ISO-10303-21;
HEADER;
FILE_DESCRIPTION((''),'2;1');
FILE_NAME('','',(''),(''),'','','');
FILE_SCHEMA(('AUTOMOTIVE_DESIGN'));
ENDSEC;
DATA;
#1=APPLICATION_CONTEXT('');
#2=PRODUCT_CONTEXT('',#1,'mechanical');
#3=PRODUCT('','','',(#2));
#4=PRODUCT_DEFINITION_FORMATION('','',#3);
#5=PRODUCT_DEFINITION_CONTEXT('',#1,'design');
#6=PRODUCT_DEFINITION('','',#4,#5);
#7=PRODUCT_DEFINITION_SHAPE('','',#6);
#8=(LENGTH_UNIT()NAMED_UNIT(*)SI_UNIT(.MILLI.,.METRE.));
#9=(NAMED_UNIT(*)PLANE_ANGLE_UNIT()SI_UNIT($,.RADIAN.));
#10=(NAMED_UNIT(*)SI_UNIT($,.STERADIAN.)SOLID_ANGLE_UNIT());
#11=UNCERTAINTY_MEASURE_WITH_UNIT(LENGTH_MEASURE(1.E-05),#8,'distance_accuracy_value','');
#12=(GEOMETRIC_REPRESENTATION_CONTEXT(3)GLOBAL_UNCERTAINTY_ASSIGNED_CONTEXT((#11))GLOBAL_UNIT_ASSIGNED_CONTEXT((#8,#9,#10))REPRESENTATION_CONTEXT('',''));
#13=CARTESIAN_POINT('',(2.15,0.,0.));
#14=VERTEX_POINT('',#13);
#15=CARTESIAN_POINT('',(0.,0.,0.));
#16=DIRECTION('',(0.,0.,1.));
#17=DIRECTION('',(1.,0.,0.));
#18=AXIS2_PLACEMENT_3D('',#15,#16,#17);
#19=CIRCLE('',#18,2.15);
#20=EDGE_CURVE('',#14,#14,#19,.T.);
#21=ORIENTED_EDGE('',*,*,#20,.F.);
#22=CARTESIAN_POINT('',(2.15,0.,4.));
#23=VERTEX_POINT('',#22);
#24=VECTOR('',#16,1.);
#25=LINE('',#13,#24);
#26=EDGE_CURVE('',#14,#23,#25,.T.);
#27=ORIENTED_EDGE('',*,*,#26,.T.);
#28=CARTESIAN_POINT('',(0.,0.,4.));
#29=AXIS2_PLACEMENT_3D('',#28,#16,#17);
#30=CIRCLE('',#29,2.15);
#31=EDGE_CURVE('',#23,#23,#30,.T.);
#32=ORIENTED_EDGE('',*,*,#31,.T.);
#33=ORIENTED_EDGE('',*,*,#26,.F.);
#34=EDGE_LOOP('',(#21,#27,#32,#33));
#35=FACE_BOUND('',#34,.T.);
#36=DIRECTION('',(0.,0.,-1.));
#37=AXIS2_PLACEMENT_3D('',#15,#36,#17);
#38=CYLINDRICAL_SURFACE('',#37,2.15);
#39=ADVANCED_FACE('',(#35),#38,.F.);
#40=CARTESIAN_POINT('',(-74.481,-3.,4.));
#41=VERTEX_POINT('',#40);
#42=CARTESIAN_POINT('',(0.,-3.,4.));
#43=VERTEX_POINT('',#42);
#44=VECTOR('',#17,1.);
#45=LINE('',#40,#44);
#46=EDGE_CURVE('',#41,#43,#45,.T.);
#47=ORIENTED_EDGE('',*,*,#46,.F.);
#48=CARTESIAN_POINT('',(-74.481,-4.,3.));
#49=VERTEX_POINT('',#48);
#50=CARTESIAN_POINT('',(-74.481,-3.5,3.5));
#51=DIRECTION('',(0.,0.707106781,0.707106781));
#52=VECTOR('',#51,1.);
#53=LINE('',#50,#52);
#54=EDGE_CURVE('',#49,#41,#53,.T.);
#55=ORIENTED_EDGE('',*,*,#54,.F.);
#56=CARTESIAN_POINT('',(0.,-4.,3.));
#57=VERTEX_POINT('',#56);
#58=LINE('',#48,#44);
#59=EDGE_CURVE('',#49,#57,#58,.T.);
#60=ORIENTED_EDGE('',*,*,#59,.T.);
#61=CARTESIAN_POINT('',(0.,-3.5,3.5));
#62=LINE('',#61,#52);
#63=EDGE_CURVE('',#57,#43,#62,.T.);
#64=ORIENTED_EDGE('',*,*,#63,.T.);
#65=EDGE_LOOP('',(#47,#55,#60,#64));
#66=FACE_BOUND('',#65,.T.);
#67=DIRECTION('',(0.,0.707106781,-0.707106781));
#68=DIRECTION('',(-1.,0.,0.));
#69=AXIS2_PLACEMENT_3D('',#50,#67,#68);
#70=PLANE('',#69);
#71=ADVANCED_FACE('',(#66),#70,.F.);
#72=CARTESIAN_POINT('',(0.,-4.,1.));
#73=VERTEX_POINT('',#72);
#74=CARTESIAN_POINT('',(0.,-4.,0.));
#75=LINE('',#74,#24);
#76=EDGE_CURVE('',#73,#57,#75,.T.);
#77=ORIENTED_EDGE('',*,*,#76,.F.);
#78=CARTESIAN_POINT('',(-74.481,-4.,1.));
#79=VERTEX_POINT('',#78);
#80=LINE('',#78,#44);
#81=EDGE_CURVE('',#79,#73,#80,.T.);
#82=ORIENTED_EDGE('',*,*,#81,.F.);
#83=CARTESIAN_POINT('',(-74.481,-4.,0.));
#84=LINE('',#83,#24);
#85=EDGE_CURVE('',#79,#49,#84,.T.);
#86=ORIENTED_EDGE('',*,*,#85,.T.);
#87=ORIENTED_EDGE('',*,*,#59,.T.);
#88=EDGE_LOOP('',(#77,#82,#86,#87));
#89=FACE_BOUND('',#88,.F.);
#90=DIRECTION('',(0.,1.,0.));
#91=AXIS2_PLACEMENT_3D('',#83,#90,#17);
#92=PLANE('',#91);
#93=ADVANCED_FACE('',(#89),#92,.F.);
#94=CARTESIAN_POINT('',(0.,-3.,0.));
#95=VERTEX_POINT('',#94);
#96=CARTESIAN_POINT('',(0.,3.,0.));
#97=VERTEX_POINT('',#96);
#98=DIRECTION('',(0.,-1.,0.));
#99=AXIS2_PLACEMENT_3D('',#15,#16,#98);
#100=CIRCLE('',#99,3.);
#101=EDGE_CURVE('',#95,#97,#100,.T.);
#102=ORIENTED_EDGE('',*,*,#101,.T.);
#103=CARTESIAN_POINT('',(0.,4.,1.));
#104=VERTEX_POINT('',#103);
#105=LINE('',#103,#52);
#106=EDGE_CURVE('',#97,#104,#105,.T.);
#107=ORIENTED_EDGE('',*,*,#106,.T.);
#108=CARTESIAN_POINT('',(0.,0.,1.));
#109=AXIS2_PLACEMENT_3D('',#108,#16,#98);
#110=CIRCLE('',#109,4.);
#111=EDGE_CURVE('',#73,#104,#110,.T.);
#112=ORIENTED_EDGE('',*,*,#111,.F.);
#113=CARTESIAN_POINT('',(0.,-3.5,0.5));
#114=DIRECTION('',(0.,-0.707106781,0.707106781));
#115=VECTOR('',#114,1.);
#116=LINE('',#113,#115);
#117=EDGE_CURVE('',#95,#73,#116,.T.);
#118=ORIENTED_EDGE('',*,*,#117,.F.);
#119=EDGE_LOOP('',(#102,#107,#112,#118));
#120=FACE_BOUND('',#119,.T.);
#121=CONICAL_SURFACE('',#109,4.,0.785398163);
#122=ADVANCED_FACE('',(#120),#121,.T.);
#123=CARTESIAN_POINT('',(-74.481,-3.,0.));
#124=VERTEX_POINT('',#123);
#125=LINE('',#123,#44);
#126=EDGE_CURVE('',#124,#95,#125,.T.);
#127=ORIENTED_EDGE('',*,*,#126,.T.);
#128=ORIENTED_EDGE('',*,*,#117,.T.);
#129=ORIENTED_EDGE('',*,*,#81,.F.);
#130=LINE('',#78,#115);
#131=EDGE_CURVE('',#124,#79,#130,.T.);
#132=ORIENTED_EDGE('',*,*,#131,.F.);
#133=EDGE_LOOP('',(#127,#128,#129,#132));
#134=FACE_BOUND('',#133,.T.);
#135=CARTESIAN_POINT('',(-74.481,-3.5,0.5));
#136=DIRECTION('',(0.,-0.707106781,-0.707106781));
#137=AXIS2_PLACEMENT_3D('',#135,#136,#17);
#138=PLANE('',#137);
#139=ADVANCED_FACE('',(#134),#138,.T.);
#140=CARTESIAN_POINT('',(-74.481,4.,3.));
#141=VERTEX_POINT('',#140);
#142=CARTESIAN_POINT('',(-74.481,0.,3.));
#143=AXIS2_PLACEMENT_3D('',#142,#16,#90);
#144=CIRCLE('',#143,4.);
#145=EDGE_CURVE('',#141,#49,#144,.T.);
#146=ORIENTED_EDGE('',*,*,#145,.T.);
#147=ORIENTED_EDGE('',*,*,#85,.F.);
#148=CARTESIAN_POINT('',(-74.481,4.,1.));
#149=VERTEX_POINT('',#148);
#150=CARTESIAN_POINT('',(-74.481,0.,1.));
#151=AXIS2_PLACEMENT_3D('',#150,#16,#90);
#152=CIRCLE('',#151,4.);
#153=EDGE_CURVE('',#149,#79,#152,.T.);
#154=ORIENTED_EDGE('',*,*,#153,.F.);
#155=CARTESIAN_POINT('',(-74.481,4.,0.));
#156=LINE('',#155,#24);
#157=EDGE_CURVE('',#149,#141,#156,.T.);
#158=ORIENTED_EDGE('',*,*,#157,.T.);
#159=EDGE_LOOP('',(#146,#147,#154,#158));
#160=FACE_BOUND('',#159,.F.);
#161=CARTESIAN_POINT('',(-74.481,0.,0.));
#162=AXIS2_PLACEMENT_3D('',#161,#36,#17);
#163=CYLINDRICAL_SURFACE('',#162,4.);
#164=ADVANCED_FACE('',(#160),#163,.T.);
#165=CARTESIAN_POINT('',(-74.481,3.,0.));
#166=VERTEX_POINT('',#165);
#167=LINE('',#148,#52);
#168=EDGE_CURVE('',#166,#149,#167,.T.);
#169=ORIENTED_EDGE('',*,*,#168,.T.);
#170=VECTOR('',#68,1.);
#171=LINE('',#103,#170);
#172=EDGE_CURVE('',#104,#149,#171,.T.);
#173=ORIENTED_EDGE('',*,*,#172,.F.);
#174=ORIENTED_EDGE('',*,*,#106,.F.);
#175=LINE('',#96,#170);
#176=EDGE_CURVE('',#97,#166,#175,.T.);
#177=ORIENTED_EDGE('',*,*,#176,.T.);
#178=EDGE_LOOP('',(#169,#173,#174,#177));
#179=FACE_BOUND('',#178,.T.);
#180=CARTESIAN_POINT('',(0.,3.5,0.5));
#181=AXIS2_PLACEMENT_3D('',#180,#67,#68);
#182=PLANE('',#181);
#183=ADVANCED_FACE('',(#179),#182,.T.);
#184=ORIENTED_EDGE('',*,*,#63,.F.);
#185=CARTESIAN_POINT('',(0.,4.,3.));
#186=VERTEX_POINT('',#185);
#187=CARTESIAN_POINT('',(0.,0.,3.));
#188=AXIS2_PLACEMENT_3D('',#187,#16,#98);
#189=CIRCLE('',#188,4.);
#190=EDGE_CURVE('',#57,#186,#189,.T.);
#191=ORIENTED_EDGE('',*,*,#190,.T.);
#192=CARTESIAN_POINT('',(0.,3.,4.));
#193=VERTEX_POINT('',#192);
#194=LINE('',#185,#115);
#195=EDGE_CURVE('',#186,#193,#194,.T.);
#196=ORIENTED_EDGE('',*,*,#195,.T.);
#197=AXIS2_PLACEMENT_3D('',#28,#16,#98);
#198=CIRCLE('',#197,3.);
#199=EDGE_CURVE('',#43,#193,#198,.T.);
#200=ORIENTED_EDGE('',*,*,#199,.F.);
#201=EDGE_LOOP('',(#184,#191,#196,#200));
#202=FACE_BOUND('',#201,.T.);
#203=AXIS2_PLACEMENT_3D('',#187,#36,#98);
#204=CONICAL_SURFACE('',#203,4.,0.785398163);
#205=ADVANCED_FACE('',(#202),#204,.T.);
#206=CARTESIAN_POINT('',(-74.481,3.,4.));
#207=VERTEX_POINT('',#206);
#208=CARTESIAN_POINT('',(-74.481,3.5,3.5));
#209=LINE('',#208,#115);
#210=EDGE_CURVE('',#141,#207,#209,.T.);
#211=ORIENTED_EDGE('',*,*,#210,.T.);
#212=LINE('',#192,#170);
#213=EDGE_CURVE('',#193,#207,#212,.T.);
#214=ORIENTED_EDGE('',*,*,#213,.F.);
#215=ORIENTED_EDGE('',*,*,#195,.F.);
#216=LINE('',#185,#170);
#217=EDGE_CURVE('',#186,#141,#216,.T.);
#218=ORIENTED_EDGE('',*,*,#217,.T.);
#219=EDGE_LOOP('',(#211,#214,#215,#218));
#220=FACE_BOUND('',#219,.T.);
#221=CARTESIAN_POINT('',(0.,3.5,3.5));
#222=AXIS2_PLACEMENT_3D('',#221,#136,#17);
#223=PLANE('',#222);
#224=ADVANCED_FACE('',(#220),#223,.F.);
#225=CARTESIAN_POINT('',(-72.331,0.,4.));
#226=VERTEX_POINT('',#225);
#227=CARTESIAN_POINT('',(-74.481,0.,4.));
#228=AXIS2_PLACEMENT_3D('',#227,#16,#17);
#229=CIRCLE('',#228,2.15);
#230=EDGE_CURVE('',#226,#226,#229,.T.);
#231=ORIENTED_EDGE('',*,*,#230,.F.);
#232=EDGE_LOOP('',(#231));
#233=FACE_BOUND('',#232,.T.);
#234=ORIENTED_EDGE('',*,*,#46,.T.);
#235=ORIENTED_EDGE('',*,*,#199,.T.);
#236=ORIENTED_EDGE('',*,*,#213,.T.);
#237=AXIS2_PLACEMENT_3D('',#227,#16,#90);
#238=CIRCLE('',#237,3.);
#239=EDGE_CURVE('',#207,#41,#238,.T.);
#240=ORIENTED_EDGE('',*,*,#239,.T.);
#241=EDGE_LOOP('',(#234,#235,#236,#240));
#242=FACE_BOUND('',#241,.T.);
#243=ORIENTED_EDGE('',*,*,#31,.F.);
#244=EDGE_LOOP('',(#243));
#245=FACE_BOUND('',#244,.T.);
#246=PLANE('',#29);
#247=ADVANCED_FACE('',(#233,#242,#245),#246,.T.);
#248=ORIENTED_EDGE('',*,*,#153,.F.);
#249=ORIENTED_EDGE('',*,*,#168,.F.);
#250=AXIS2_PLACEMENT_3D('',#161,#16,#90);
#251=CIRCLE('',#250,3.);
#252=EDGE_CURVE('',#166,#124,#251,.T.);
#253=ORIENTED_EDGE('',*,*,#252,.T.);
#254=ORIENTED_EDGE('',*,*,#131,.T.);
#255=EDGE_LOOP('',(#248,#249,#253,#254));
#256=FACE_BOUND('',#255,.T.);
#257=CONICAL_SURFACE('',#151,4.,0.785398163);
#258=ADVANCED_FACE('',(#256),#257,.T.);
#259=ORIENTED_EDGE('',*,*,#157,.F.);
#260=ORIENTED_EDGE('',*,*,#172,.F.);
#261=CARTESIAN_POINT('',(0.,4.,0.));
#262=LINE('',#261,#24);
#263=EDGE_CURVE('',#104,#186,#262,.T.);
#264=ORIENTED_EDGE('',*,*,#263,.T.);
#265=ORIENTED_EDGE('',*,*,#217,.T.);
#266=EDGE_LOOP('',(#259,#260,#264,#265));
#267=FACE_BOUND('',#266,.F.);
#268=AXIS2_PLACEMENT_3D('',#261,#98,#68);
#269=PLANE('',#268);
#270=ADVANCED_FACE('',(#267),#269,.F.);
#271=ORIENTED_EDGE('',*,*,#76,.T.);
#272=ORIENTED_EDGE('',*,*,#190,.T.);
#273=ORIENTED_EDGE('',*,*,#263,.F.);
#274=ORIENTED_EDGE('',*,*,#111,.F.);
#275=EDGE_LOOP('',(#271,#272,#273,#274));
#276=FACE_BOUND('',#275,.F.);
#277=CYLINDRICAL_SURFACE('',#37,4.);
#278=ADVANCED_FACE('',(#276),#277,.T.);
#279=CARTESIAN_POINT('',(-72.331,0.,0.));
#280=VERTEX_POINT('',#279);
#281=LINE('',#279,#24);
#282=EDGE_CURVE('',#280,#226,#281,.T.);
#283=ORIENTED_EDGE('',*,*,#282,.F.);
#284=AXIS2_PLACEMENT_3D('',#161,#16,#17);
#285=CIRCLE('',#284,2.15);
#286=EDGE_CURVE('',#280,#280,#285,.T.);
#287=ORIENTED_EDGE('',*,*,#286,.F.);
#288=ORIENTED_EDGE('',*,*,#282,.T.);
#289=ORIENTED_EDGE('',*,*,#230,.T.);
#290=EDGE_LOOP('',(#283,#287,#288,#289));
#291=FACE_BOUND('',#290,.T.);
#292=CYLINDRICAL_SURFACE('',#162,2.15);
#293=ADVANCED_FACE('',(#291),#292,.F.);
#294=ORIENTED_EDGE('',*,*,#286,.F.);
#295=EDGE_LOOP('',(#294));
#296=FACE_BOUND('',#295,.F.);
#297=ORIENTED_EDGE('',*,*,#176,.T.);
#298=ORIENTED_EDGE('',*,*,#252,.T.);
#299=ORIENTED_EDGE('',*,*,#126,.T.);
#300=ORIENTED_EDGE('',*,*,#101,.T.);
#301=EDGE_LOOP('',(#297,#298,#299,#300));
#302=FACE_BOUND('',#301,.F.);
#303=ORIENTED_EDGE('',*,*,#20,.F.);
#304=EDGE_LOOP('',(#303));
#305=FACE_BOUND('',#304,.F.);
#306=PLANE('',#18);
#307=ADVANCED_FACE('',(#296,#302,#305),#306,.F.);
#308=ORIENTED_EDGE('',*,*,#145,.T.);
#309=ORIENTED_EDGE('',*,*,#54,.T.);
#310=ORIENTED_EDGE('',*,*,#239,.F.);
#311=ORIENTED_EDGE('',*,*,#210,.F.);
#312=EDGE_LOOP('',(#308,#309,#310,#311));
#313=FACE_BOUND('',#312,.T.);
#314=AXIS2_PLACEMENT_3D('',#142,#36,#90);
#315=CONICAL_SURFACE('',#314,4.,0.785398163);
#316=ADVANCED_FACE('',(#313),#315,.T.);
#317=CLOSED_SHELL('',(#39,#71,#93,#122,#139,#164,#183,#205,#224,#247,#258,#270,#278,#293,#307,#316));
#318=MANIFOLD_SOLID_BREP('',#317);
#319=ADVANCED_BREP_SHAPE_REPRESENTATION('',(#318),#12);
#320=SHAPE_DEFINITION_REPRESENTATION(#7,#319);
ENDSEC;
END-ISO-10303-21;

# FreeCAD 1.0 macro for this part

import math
import FreeCAD as App
import Part
import Sketcher

V = App.Vector


def edges_at(feature, points):
    """Names of the edges that pass closest to the given points."""
    edges = feature.Shape.Edges
    near = lambda p: min(range(len(edges)), key=lambda i: edges[i].distToShape(Part.Vertex(*p))[0])
    return sorted({f"Edge{near(p) + 1}" for p in points})

doc = App.newDocument("Part")
body = doc.addObject("PartDesign::Body", "Body")

# Sketch on XY plane
sketch1 = body.newObject("Sketcher::SketchObject", "Sketch")
sketch1.AttachmentSupport = (doc.getObject("XY_Plane"), [""])
sketch1.MapMode = "FlatFace"
sketch1.addGeometry([
    Part.ArcOfCircle(Part.Circle(V(0, 0, 0), V(0, 0, 1), 4), math.radians(-90), math.radians(90)),  # 0
    Part.LineSegment(V(0, 4, 0), V(-74.5, 4, 0)),  # 1
    Part.ArcOfCircle(Part.Circle(V(-74.5, 0, 0), V(0, 0, 1), 4), math.radians(90), math.radians(270)),  # 2
    Part.LineSegment(V(-74.5, -4, 0), V(0, -4, 0)),  # 3
    Part.Circle(V(0, 0, 0), V(0, 0, 1), 2.1),  # 4
    Part.Circle(V(-74.5, 0, 0), V(0, 0, 1), 2.1),  # 5
], False)
sketch1.addConstraint([
    Sketcher.Constraint("Tangent", 0, 2, 1, 1),
    Sketcher.Constraint("Tangent", 1, 2, 2, 1),
    Sketcher.Constraint("Tangent", 2, 2, 3, 1),
    Sketcher.Constraint("Tangent", 3, 2, 0, 1),
    Sketcher.Constraint("Horizontal", 1),
    Sketcher.Constraint("Horizontal", 3),
    Sketcher.Constraint("Coincident", 0, 3, -1, 1),
    Sketcher.Constraint("Coincident", 4, 3, -1, 1),
    Sketcher.Constraint("Coincident", 5, 3, 2, 3),
    Sketcher.Constraint("Equal", 4, 5),
    Sketcher.Constraint("Radius", 0, 4.0),
    Sketcher.Constraint("Diameter", 4, 4.3),
    Sketcher.Constraint("DistanceX", 1, 2, 1, 1, 74.481),
])
pad1 = body.newObject("PartDesign::Pad", "Pad")
pad1.Profile = sketch1
pad1.Length = 4
doc.recompute()

chamfer = body.newObject("PartDesign::Chamfer", "Chamfer")
chamfer.Base = (pad1, edges_at(pad1, [
    (-37.24, -4, 4),
    (4, 0, 4),
    (-37.24, 4, 4),
    (-78.481, 0, 4),
    (-78.481, 0, 0),
    (-37.24, -4, 0),
    (4, 0, 0),
    (-37.24, 4, 0),
]))
chamfer.Size = 1

doc.recompute()
